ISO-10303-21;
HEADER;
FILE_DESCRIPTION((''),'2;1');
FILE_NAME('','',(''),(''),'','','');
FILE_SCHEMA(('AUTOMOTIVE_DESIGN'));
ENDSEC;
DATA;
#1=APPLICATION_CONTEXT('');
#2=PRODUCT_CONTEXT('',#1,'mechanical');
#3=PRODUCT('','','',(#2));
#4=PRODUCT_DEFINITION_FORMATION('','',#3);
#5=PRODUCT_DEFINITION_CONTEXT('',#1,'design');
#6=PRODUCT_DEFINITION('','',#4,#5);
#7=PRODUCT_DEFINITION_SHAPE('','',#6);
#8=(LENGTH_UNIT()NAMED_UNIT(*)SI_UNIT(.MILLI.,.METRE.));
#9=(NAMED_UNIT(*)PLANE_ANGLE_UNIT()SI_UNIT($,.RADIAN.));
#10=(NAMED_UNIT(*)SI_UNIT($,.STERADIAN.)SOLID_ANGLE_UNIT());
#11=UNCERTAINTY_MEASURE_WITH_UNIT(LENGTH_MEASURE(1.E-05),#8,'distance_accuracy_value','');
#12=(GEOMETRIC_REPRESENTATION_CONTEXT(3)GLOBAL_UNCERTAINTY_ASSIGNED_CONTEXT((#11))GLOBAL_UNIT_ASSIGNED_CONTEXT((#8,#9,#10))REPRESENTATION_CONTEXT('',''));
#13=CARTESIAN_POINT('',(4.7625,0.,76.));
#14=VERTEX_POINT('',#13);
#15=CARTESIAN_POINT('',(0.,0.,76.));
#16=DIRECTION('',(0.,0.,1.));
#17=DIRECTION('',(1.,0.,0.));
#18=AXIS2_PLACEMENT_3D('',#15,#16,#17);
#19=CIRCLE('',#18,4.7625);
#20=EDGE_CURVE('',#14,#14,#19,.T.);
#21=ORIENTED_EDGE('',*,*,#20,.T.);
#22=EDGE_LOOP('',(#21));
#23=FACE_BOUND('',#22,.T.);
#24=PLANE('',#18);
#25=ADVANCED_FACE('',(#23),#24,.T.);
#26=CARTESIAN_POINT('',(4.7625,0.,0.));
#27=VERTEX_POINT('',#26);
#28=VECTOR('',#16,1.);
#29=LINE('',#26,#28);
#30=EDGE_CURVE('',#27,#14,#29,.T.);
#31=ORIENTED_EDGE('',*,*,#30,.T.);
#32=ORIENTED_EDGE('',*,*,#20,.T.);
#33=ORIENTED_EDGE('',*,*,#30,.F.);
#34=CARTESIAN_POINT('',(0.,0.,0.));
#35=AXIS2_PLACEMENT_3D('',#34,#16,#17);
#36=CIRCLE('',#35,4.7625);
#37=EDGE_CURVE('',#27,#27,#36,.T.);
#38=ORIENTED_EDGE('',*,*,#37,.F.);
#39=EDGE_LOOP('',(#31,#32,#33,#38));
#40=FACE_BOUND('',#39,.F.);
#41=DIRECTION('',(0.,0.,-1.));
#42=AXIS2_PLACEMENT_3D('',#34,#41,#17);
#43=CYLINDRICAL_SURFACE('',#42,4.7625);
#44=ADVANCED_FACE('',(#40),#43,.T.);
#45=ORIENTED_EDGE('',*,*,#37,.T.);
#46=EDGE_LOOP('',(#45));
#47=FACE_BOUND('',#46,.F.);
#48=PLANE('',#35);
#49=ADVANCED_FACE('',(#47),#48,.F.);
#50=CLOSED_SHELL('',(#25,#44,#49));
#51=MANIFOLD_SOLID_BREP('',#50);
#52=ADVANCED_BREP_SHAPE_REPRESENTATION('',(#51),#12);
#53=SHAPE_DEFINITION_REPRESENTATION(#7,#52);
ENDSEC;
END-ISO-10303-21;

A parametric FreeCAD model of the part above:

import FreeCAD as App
import Part
import Sketcher
from FreeCAD import Vector

doc = App.newDocument("Part")
body = doc.addObject("PartDesign::Body", "Body")

# Sketch on XY plane
sketch1 = body.newObject("Sketcher::SketchObject", "Sketch")
sketch1.AttachmentSupport = (doc.getObject("XY_Plane"), [""])
sketch1.MapMode = "FlatFace"
sketch1.addGeometry(Part.Circle(Vector(0, 0, 0), Vector(0, 0, 1), 4.7625), False)
sketch1.addConstraint([
    Sketcher.Constraint("Coincident", 0, 3, -1, 1),
    Sketcher.Constraint("Diameter", 0, 9.525),
])
pad1 = body.newObject("PartDesign::Pad", "Pad")
pad1.Profile = sketch1
pad1.Length = 76

doc.recompute()
